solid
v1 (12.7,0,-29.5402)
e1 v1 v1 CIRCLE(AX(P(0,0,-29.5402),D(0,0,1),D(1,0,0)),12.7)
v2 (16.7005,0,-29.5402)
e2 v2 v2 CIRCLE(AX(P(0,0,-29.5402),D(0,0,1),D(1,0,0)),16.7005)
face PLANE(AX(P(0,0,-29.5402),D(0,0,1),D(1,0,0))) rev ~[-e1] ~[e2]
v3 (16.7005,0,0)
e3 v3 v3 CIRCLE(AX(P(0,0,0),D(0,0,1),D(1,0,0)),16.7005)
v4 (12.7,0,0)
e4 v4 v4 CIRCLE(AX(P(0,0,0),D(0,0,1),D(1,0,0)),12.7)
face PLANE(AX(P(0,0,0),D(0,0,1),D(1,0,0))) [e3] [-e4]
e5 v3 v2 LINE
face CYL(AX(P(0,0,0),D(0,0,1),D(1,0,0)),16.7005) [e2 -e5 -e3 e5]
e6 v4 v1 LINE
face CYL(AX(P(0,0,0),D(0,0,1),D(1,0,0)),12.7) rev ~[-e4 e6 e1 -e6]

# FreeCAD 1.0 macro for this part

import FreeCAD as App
import Part
import Sketcher

V = App.Vector
Q = App.Units.Quantity

doc = App.newDocument("Part")
body = doc.addObject("PartDesign::Body", "Body")

sketch1 = body.newObject("Sketcher::SketchObject", "Sketch")
sketch1.AttachmentSupport = (doc.getObject("XY_Plane"), [""])
sketch1.MapMode = "FlatFace"
sketch1.addGeometry(Part.Circle(V(0, 0, 0), V(0, 0, 1), 16.7005), False)
sketch1.addGeometry(Part.Circle(V(0, 0, 0), V(0, 0, 1), 12.7), False)
sketch1.addConstraint(Sketcher.Constraint("Coincident", 0, 3, -1, 1))
sketch1.addConstraint(Sketcher.Constraint("Coincident", 1, 3, -1, 1))
sketch1.addConstraint(Sketcher.Constraint("Diameter", 1, Q("1 in")))
sketch1.addConstraint(Sketcher.Constraint("Diameter", 0, Q("1.315 in")))
pad1 = body.newObject("PartDesign::Pad", "Pad")
pad1.Profile = sketch1
pad1.Length = Q("1.163 in")
pad1.Reversed = True

doc.recompute()
